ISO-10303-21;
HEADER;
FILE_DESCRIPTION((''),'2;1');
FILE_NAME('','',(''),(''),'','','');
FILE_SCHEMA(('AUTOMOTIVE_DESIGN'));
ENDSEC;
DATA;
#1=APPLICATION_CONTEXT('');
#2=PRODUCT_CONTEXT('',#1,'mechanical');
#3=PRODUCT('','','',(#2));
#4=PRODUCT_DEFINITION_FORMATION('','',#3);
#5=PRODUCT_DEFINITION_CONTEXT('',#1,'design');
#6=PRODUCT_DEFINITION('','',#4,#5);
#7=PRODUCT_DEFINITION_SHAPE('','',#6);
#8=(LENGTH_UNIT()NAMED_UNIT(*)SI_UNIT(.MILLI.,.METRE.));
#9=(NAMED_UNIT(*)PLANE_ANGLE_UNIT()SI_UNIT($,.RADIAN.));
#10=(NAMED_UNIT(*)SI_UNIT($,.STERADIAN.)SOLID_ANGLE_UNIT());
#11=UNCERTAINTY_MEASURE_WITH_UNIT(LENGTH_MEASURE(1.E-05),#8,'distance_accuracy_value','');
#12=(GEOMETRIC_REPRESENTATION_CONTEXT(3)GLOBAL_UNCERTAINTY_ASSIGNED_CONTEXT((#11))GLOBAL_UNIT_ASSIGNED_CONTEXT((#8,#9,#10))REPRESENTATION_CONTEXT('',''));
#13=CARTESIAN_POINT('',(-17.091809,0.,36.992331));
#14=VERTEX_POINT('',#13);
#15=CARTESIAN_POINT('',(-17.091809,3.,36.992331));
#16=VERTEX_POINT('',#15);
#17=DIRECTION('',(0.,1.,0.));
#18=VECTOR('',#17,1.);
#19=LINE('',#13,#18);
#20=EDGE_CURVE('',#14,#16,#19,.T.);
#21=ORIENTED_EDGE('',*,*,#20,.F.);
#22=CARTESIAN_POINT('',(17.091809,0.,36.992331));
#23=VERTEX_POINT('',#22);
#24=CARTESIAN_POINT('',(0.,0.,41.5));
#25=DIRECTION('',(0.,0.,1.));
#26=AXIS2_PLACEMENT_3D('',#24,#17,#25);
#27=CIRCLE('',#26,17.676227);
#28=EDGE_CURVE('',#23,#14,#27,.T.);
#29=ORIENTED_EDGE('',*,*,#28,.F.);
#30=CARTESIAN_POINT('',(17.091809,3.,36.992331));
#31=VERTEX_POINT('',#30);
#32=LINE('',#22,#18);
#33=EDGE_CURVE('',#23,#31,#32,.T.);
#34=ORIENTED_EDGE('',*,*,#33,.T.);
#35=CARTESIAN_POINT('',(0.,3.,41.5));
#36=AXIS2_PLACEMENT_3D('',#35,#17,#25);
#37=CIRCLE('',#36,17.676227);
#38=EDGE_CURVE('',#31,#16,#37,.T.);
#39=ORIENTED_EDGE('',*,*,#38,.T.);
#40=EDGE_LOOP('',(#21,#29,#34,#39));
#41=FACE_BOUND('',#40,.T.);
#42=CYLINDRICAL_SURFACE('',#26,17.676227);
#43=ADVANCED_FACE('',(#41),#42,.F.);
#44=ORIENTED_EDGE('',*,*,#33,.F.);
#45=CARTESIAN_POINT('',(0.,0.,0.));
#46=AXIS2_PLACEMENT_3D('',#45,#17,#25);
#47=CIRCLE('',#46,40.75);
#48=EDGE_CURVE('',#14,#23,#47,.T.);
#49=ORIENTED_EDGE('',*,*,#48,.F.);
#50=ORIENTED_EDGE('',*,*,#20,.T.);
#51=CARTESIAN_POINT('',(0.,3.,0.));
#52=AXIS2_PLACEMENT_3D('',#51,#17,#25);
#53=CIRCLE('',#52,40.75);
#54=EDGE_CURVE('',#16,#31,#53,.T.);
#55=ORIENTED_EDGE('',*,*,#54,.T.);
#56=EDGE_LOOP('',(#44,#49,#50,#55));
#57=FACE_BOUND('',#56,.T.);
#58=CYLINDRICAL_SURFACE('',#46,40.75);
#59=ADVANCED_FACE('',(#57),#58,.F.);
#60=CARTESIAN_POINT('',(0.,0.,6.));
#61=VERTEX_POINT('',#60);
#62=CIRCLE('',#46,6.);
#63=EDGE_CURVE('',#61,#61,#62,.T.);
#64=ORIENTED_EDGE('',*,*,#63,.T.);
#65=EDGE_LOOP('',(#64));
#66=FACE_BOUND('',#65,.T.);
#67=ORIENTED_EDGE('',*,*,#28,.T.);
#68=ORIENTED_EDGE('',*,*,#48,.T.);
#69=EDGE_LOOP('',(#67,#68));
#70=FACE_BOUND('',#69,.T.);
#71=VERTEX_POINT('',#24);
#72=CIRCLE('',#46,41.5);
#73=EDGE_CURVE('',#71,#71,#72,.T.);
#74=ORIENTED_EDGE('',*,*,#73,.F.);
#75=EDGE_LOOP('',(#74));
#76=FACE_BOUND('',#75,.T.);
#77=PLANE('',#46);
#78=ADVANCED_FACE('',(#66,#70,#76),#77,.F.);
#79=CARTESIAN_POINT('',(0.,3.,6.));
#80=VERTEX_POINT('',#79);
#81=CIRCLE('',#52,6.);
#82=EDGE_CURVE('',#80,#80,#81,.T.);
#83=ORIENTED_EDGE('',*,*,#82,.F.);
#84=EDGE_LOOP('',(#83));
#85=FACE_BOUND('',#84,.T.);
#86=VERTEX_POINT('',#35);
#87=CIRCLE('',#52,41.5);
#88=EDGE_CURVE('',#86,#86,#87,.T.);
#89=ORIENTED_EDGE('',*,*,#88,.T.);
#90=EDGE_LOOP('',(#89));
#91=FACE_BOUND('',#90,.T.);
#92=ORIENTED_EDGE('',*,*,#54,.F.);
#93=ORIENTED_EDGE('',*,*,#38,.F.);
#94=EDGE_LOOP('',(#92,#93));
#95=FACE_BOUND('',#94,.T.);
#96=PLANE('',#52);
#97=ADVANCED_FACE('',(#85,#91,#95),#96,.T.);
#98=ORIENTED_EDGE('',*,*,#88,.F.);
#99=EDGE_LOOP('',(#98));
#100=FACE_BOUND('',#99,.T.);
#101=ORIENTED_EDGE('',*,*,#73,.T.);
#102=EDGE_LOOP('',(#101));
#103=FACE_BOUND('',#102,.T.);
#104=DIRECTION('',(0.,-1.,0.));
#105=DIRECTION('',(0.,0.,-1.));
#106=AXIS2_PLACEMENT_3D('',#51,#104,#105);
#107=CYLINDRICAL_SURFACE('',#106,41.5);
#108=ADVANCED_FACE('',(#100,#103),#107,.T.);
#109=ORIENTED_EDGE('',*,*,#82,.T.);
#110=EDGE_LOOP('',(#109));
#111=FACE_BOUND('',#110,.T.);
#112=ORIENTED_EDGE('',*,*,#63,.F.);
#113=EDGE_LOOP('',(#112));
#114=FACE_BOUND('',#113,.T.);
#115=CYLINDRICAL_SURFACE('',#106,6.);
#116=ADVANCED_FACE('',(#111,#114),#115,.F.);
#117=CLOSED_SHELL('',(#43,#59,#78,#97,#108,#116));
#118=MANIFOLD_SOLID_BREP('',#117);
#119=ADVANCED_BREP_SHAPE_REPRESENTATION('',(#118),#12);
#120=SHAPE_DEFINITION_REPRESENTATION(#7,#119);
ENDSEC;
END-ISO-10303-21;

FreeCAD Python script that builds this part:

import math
import FreeCAD as App
import Part
import Sketcher

V = App.Vector
Q = App.Units.Quantity

doc = App.newDocument("Part")
body = doc.addObject("PartDesign::Body", "Body")

# Sketch on XZ plane
sketch1 = body.newObject("Sketcher::SketchObject", "Sketch")
sketch1.AttachmentSupport = (doc.getObject("XZ_Plane"), [""])
sketch1.MapMode = "FlatFace"
sketch1.addGeometry([
    Part.Circle(V(0, 0, 0), V(0, 0, 1), 42),
    Part.Circle(V(0, 0, 0), V(0, 0, 1), 6),
], False)
sketch1.addConstraint([
    Sketcher.Constraint("Coincident", 0, 3, -1, 1),
    Sketcher.Constraint("Coincident", 1, 3, -1, 1),
    Sketcher.Constraint("Diameter", 0, Q("83 mm")),
    Sketcher.Constraint("Diameter", 1, Q("12 mm")),
])
pad1 = body.newObject("PartDesign::Pad", "Pad")
pad1.Profile = sketch1
pad1.Length = 3
pad1.Reversed = True

# Sketch on XZ plane
sketch2 = body.newObject("Sketcher::SketchObject", "Sketch001")
sketch2.AttachmentSupport = (doc.getObject("XZ_Plane"), [""])
sketch2.MapMode = "FlatFace"
sketch2.AttachmentOffset = App.Placement(V(0, 0, -3), App.Rotation())
sketch2.addGeometry([
    Part.ArcOfCircle(Part.Circle(V(0, 42, 0), V(0, 0, 1), 18), math.radians(-165), math.radians(-15)),
    Part.ArcOfCircle(Part.Circle(V(0, 0, 0), V(0, 0, 1), 41), math.radians(65), math.radians(115)),
], False)
sketch2.addConstraint([
    Sketcher.Constraint("Coincident", 0, 1, 1, 2),
    Sketcher.Constraint("Coincident", 1, 1, 0, 2),
    Sketcher.Constraint("Coincident", 1, 3, -1, 1),
    Sketcher.Constraint("PointOnObject", 0, 3, -2),
    Sketcher.Constraint("Radius", 1, Q("40.75 mm")),
    Sketcher.Constraint("DistanceY", -1, 1, 0, 3, Q("41.5 mm")),
    Sketcher.Constraint("Radius", 0, Q("17.676227 mm")),
])
pocket1 = body.newObject("PartDesign::Pocket", "Pocket")
pocket1.Profile = sketch2
pocket1.Length = 3
pocket1.Reversed = True

doc.recompute()
